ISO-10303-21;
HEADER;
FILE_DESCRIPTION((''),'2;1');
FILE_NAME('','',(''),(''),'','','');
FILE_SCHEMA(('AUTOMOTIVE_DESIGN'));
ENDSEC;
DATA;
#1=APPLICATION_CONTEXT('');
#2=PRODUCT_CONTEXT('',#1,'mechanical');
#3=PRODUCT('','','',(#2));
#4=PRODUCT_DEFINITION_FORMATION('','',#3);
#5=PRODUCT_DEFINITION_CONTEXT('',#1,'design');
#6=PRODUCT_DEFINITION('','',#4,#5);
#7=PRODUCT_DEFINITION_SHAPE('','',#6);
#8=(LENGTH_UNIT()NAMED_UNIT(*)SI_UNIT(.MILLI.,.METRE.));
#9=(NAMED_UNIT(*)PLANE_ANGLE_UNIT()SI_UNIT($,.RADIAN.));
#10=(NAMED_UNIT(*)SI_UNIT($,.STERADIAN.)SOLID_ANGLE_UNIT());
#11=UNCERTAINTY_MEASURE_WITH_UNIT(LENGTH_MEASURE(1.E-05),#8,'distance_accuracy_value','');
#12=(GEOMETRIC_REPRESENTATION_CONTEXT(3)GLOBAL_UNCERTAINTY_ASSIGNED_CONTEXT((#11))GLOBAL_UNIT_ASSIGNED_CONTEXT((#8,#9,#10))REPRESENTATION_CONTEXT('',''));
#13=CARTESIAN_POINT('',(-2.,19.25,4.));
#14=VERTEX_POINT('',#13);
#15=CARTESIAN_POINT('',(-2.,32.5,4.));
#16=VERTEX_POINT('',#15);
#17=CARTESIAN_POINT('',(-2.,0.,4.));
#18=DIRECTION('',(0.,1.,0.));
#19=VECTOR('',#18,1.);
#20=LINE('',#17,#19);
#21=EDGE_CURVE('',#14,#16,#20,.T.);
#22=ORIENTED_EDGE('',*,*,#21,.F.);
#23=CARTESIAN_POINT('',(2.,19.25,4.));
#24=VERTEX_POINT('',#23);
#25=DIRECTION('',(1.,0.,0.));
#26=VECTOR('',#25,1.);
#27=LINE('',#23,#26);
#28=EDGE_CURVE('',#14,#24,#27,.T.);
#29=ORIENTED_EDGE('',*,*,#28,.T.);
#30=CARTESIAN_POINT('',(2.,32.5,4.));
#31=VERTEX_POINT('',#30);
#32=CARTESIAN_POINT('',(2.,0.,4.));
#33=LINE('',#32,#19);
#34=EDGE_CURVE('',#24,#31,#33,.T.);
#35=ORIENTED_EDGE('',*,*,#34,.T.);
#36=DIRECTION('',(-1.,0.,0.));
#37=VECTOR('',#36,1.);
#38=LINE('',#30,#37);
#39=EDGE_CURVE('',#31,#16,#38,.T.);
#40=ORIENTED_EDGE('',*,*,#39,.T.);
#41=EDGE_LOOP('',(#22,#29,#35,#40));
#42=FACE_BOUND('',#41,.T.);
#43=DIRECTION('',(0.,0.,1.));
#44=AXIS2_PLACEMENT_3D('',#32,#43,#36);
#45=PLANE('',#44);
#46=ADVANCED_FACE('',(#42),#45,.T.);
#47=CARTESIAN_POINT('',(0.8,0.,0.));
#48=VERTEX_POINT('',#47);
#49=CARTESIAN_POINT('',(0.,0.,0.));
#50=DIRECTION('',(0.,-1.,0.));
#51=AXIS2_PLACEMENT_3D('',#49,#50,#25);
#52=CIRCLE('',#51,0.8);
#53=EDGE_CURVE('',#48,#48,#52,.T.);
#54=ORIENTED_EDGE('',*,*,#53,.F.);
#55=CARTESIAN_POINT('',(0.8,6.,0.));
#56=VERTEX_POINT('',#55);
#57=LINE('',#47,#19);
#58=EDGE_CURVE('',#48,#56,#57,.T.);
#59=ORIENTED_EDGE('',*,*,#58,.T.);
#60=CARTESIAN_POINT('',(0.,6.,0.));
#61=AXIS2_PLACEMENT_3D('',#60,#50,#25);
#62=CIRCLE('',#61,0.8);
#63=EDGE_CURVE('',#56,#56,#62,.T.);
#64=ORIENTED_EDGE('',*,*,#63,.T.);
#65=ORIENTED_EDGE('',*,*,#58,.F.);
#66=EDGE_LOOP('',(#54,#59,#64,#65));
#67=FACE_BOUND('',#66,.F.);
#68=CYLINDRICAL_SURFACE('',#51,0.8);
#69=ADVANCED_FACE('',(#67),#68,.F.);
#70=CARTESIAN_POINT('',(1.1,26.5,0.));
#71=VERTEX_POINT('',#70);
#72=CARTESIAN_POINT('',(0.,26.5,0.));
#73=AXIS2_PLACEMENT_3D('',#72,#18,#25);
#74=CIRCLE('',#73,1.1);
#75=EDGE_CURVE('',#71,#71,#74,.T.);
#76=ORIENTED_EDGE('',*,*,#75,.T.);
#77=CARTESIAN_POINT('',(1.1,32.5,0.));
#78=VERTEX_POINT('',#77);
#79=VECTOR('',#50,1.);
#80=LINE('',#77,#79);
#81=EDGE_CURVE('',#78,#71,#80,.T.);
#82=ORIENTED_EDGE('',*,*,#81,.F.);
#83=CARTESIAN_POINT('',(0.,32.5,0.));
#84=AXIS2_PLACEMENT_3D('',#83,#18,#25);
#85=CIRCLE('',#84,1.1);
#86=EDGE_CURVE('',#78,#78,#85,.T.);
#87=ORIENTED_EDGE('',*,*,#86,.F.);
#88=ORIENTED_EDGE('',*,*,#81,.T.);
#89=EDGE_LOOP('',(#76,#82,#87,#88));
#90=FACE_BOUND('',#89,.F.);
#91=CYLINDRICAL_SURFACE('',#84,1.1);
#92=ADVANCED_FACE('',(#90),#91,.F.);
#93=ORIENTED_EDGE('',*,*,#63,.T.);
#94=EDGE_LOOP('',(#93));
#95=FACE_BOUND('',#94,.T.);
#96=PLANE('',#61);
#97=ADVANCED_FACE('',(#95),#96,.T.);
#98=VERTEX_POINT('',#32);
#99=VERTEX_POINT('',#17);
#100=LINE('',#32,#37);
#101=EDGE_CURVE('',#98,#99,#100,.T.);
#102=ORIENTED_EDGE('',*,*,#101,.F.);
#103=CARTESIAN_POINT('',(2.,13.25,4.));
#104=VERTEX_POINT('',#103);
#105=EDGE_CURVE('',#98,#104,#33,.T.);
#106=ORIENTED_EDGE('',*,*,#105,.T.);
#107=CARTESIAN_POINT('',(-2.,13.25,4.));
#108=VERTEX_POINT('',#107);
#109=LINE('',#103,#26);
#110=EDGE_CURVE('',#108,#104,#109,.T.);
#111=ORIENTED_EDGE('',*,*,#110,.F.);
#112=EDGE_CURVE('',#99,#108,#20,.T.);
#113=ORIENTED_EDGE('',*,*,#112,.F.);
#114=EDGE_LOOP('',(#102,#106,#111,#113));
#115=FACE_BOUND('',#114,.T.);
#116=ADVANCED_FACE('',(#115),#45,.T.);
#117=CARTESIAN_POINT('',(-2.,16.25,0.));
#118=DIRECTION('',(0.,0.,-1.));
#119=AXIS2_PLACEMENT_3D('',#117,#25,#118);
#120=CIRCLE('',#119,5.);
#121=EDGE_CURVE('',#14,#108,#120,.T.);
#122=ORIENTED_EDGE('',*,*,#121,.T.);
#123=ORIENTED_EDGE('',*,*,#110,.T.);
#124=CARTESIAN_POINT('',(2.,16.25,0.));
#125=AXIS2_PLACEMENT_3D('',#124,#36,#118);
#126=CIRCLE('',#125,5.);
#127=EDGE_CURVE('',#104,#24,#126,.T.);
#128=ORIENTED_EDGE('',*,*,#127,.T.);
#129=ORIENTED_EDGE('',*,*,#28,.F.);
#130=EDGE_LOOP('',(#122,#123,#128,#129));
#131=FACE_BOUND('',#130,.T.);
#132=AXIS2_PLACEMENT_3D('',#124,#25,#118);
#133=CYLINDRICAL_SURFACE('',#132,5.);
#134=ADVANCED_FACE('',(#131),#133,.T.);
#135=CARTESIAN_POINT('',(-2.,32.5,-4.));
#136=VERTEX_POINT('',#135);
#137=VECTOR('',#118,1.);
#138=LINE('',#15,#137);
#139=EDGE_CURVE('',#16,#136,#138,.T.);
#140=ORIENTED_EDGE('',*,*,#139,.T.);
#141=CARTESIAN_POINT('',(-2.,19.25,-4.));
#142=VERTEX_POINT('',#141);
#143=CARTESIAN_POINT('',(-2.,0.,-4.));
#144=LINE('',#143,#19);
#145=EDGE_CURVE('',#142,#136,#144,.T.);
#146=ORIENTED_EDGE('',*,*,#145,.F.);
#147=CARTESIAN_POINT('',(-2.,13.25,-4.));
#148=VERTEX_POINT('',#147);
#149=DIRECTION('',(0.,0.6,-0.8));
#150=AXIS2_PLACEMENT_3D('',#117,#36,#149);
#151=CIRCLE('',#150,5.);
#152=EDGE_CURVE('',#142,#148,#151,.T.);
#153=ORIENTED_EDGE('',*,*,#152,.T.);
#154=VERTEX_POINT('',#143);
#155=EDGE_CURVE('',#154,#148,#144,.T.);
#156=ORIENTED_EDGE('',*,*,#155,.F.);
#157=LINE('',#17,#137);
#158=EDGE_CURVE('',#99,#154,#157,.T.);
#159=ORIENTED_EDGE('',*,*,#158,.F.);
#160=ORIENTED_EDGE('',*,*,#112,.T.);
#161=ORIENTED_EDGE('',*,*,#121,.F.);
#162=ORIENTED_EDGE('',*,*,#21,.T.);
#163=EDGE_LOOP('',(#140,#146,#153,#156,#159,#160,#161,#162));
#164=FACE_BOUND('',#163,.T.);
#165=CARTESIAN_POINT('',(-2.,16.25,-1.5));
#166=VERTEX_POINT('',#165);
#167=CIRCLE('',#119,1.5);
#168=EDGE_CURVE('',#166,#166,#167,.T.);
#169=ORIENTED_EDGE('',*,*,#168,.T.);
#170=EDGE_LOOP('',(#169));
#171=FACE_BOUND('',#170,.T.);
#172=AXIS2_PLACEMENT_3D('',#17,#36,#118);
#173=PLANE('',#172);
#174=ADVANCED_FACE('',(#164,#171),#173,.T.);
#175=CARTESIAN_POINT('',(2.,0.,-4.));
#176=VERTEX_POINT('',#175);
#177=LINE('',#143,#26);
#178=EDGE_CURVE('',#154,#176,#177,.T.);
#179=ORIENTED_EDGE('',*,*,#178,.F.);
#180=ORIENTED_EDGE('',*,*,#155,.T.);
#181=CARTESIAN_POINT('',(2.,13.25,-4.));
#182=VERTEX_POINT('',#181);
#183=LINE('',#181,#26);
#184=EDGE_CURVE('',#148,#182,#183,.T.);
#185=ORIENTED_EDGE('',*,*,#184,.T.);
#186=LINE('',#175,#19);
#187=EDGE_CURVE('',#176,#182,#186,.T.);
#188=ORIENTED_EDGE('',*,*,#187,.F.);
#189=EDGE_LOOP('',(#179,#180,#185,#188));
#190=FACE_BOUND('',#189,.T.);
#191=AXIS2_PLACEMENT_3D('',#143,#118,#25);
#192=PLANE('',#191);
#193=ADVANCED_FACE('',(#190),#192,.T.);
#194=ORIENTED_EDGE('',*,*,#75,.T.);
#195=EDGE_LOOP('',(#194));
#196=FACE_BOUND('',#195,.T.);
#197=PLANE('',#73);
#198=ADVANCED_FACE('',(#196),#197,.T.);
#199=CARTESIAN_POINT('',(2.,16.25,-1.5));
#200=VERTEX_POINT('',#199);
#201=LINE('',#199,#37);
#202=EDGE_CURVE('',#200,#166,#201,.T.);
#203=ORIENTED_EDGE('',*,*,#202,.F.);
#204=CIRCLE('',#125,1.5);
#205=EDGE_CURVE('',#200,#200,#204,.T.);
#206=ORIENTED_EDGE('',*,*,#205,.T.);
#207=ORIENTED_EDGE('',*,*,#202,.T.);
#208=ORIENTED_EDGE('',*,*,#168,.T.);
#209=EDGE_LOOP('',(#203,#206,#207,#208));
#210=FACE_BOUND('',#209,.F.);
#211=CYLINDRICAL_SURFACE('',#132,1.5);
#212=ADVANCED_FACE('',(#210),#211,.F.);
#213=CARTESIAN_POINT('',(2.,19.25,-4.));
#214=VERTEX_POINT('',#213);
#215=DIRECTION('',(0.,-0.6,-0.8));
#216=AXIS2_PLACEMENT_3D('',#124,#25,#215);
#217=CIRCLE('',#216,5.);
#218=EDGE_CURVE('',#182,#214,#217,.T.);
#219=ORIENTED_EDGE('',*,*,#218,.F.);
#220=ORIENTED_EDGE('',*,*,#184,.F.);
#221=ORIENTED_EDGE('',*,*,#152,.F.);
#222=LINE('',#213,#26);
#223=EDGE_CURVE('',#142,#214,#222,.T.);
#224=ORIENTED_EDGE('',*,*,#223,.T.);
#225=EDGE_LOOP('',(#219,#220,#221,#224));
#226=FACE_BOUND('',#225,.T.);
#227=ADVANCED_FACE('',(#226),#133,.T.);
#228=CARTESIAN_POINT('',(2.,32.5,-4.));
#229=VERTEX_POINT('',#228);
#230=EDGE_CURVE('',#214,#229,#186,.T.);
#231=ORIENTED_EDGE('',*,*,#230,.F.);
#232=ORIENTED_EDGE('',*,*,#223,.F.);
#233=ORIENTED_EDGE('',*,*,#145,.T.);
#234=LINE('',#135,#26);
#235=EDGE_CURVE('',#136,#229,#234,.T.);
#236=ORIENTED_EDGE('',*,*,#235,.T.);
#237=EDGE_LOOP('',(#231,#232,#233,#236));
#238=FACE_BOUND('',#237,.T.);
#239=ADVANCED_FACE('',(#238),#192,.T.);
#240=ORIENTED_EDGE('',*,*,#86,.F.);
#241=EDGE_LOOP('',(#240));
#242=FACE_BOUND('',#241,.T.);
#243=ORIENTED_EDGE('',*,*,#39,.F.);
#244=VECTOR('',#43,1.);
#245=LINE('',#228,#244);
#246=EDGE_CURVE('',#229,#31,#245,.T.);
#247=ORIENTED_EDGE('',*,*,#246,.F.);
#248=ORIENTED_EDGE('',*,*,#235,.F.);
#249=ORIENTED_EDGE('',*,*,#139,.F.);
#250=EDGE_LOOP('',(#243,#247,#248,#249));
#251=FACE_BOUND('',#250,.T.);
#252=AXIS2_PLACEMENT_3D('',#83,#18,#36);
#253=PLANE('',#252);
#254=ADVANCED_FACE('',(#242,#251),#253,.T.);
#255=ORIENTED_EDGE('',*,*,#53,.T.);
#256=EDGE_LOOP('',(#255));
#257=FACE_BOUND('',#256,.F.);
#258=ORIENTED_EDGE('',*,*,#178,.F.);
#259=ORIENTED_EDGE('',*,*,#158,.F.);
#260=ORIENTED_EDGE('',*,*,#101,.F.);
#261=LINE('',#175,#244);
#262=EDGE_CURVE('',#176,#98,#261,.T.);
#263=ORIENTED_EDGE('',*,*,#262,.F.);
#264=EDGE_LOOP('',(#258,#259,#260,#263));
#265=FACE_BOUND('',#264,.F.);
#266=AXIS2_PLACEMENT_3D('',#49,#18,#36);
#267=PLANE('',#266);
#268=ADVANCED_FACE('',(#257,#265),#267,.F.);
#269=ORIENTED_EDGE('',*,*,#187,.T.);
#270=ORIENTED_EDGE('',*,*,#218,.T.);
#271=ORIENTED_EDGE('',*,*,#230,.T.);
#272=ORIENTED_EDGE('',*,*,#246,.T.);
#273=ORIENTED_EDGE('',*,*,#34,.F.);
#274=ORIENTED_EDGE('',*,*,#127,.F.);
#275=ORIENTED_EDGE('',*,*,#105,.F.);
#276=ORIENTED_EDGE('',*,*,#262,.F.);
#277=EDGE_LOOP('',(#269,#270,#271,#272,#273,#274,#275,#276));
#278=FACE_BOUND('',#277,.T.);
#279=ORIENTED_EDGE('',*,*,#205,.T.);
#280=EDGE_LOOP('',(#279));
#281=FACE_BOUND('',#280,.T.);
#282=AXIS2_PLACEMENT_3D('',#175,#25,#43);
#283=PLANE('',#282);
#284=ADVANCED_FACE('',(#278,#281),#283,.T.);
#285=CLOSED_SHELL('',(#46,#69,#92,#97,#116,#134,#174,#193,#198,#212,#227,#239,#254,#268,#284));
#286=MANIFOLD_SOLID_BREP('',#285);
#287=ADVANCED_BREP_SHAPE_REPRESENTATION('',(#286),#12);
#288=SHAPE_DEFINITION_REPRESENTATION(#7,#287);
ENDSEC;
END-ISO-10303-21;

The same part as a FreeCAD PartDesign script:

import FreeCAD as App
import Part
import Sketcher
Q = App.Units.Quantity


def add_polygon(sketch, points):
    """Adds a closed chain of lines whose ends are joined by coincident constraints."""
    first, n = sketch.GeometryCount, len(points)
    for a, b in zip(points, points[1:] + points[:1]):
        sketch.addGeometry(Part.LineSegment(App.Vector(*a, 0), App.Vector(*b, 0)), False)
    for i in range(n):
        sketch.addConstraint(Sketcher.Constraint("Coincident", first + i, 2, first + (i + 1) % n, 1))

doc = App.newDocument("Part")
body = doc.addObject("PartDesign::Body", "Body")

sketch1 = doc.addObject("Sketcher::SketchObject", "Sketch")
body.addObject(sketch1)
sketch1.AttachmentSupport = (doc.XZ_Plane, [""])
sketch1.MapMode = "FlatFace"
add_polygon(sketch1, [(-2, 4), (2, 4), (2, -4), (-2, -4)])
sketch1.addConstraint(Sketcher.Constraint("Horizontal", 0))
sketch1.addConstraint(Sketcher.Constraint("Vertical", 1))
sketch1.addConstraint(Sketcher.Constraint("Horizontal", 2))
sketch1.addConstraint(Sketcher.Constraint("Vertical", 3))
sketch1.addConstraint(Sketcher.Constraint("Symmetric", 0, 2, 2, 2, -1, 1))
sketch1.addConstraint(Sketcher.Constraint("DistanceX", 0, 1, 0, 2, Q("4 mm")))
sketch1.addConstraint(Sketcher.Constraint("DistanceY", 1, 2, 1, 1, Q("8 mm")))
pad1 = doc.addObject("PartDesign::Pad", "Pad")
body.addObject(pad1)
pad1.Profile = sketch1
pad1.Length = 32.5
pad1.Reversed = True

sketch2 = doc.addObject("Sketcher::SketchObject", "Sketch001")
body.addObject(sketch2)
sketch2.AttachmentSupport = (doc.XZ_Plane, [""])
sketch2.MapMode = "FlatFace"
sketch2.addGeometry(Part.Circle(App.Vector(0, 0, 0), App.Vector(0, 0, 1), 0.8), False)
sketch2.addConstraint(Sketcher.Constraint("Coincident", 0, 3, -1, 1))
sketch2.addConstraint(Sketcher.Constraint("Diameter", 0, Q("1.6 mm")))
pocket1 = doc.addObject("PartDesign::Pocket", "Pocket")
body.addObject(pocket1)
pocket1.Profile = sketch2
pocket1.Length = 6

sketch3 = doc.addObject("Sketcher::SketchObject", "Sketch002")
body.addObject(sketch3)
sketch3.AttachmentSupport = (doc.YZ_Plane, [""])
sketch3.MapMode = "FlatFace"
sketch3.AttachmentOffset = App.Placement(App.Vector(0, 0, 2), App.Rotation())
sketch3.addGeometry(Part.Circle(App.Vector(16.2, 0, 0), App.Vector(0, 0, 1), 1.5), False)
sketch3.addConstraint(Sketcher.Constraint("PointOnObject", 0, 3, -1))
sketch3.addConstraint(Sketcher.Constraint("Diameter", 0, Q("3 mm")))
sketch3.addConstraint(Sketcher.Constraint("DistanceX", -1, 1, 0, 3, Q("16.25 mm")))
pocket2 = doc.addObject("PartDesign::Pocket", "Pocket001")
body.addObject(pocket2)
pocket2.Profile = sketch3
pocket2.Length = 4

sketch4 = doc.addObject("Sketcher::SketchObject", "Sketch003")
body.addObject(sketch4)
sketch4.AttachmentSupport = (doc.XZ_Plane, [""])
sketch4.MapMode = "FlatFace"
sketch4.AttachmentOffset = App.Placement(App.Vector(0, 0, -32.5), App.Rotation())
sketch4.addGeometry(Part.Circle(App.Vector(0, 0, 0), App.Vector(0, 0, 1), 1.1), False)
sketch4.addConstraint(Sketcher.Constraint("Coincident", 0, 3, -1, 1))
sketch4.addConstraint(Sketcher.Constraint("Diameter", 0, Q("2.2 mm")))
pocket3 = doc.addObject("PartDesign::Pocket", "Pocket002")
body.addObject(pocket3)
pocket3.Profile = sketch4
pocket3.Length = 6
pocket3.Reversed = True

sketch5 = doc.addObject("Sketcher::SketchObject", "Sketch004")
body.addObject(sketch5)
sketch5.AttachmentSupport = (doc.YZ_Plane, [""])
sketch5.MapMode = "FlatFace"
sketch5.AttachmentOffset = App.Placement(App.Vector(0, 0, 2), App.Rotation())
sketch5.addGeometry(Part.Circle(App.Vector(16.2, 0, 0), App.Vector(0, 0, 1), 5), False)
sketch5.addGeometry(Part.Circle(App.Vector(16.2, 0, 0), App.Vector(0, 0, 1), 1.5), False)
sketch5.addConstraint(Sketcher.Constraint("Coincident", 1, 3, 0, 3))
sketch5.addConstraint(Sketcher.Constraint("PointOnObject", 0, 3, -1))
sketch5.addConstraint(Sketcher.Constraint("Diameter", 0, Q("10 mm")))
sketch5.addConstraint(Sketcher.Constraint("Diameter", 1, Q("3 mm")))
sketch5.addConstraint(Sketcher.Constraint("DistanceX", -1, 1, 0, 3, Q("16.25 mm")))
pad2 = doc.addObject("PartDesign::Pad", "Pad001")
body.addObject(pad2)
pad2.Profile = sketch5
pad2.Length = 4
pad2.Reversed = True

doc.recompute()
